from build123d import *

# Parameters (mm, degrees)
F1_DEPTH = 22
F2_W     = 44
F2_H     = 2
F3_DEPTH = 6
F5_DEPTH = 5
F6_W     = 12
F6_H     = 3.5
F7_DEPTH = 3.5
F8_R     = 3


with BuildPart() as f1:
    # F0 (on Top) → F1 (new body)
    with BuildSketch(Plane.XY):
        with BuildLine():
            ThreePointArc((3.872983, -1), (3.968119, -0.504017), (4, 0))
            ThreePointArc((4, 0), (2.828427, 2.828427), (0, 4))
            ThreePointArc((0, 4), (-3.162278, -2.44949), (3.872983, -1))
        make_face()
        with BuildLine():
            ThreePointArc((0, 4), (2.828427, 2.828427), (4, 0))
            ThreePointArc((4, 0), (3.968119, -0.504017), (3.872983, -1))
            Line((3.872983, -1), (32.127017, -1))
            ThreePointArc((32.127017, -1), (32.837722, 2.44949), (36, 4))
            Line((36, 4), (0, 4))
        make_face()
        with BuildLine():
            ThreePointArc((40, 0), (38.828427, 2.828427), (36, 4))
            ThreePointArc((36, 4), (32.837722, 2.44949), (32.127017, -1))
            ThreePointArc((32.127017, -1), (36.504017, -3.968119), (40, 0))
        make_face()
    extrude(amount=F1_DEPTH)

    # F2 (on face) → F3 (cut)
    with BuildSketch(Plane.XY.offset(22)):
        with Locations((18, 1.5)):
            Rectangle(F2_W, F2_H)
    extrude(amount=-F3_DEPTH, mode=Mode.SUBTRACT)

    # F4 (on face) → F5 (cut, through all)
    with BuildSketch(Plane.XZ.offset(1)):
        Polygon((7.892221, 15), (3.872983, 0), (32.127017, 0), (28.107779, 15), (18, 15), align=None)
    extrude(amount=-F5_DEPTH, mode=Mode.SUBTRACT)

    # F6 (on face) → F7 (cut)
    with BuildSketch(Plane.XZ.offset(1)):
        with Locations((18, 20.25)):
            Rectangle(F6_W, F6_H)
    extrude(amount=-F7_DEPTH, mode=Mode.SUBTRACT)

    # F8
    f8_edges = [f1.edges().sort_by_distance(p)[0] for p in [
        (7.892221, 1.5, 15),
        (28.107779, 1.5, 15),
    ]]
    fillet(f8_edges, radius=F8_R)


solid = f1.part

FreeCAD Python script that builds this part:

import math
import FreeCAD as App
import Part
import Sketcher
Q = App.Units.Quantity


def edges_at(feature, points):
    """Names of the edges that pass closest to the given points."""
    edges = feature.Shape.Edges
    near = lambda p: min(range(len(edges)), key=lambda i: edges[i].distToShape(Part.Vertex(*p))[0])
    return sorted({f"Edge{near(p) + 1}" for p in points})


def add_polygon(sketch, points):
    """Adds a closed chain of lines whose ends are joined by coincident constraints."""
    first, n = sketch.GeometryCount, len(points)
    for a, b in zip(points, points[1:] + points[:1]):
        sketch.addGeometry(Part.LineSegment(App.Vector(*a, 0), App.Vector(*b, 0)), False)
    for i in range(n):
        sketch.addConstraint(Sketcher.Constraint("Coincident", first + i, 2, first + (i + 1) % n, 1))

doc = App.newDocument("Part")
body = doc.addObject("PartDesign::Body", "Body")

sketch1 = body.newObject("Sketcher::SketchObject", "Sketch")
sketch1.AttachmentSupport = (doc.getObject("XY_Plane"), [""])
sketch1.MapMode = "FlatFace"
sketch1.addGeometry([
    Part.ArcOfCircle(Part.Circle(App.Vector(0, 0, 0), App.Vector(0, 0, 1), 4), math.radians(90), math.radians(346)),
    Part.LineSegment(App.Vector(3.9, -1, 0), App.Vector(32.1, -1, 0)),
    Part.ArcOfCircle(Part.Circle(App.Vector(36, 0, 0), App.Vector(0, 0, 1), 4), math.radians(-166), math.radians(0)),
    Part.ArcOfCircle(Part.Circle(App.Vector(36, 0, 0), App.Vector(0, 0, 1), 4), math.radians(0), math.radians(90)),
    Part.LineSegment(App.Vector(36, 4, 0), App.Vector(0, 4, 0)),
], False)
sketch1.addConstraint([
    Sketcher.Constraint("Coincident", 0, 2, 1, 1),
    Sketcher.Constraint("Coincident", 1, 2, 2, 1),
    Sketcher.Constraint("Tangent", 2, 2, 3, 1),
    Sketcher.Constraint("Tangent", 3, 2, 4, 1),
    Sketcher.Constraint("Tangent", 4, 2, 0, 1),
    Sketcher.Constraint("Horizontal", 1),
    Sketcher.Constraint("Horizontal", 4),
    Sketcher.Constraint("Coincident", 0, 3, -1, 1),
    Sketcher.Constraint("Equal", 0, 2),
    Sketcher.Constraint("Equal", 2, 3),
    Sketcher.Constraint("PointOnObject", 2, 2, -1),
    Sketcher.Constraint("Radius", 0, Q("4 mm")),
    Sketcher.Constraint("DistanceX", 4, 2, 4, 1, Q("36 mm")),
    Sketcher.Constraint("DistanceY", 0, 2, -1, 1, Q("1 mm")),
])
pad1 = body.newObject("PartDesign::Pad", "Pad")
pad1.Profile = sketch1
pad1.Length = 22

sketch2 = body.newObject("Sketcher::SketchObject", "Sketch001")
sketch2.AttachmentSupport = (doc.getObject("XY_Plane"), [""])
sketch2.MapMode = "FlatFace"
sketch2.AttachmentOffset = App.Placement(App.Vector(0, 0, 22), App.Rotation())
add_polygon(sketch2, [(-4, 2.5), (-4, 0.5), (40, 0.5), (40, 2.5)])
sketch2.addConstraint([
    Sketcher.Constraint("Vertical", 0),
    Sketcher.Constraint("Horizontal", 1),
    Sketcher.Constraint("Vertical", 2),
    Sketcher.Constraint("Horizontal", 3),
    Sketcher.Constraint("DistanceX", 1, 1, 1, 2, Q("44 mm")),
    Sketcher.Constraint("DistanceY", 0, 2, 0, 1, Q("2 mm")),
    Sketcher.Constraint("DistanceX", 0, 2, -1, 1, Q("4 mm")),
    Sketcher.Constraint("DistanceY", -1, 1, 0, 2, Q("0.5 mm")),
])
pocket1 = body.newObject("PartDesign::Pocket", "Pocket")
pocket1.Profile = sketch2
pocket1.Length = 6

sketch3 = body.newObject("Sketcher::SketchObject", "Sketch002")
sketch3.AttachmentSupport = (doc.getObject("XZ_Plane"), [""])
sketch3.MapMode = "FlatFace"
sketch3.AttachmentOffset = App.Placement(App.Vector(0, 0, 1), App.Rotation())
add_polygon(sketch3, [(8, 15), (4, 0), (32, 0), (28, 15)])
sketch3.addConstraint([
    Sketcher.Constraint("Horizontal", 1),
    Sketcher.Constraint("Horizontal", 3),
    Sketcher.Constraint("PointOnObject", 0, 2, -1),
    Sketcher.Constraint("Equal", 0, 2),
    Sketcher.Constraint("Angle", 0, Q("-105 deg")),
    Sketcher.Constraint("DistanceY", -1, 1, 2, 2, Q("15 mm")),
    Sketcher.Constraint("DistanceX", 3, 2, 3, 1, Q("20.215558 mm")),
    Sketcher.Constraint("DistanceX", -1, 1, 2, 2, Q("28.107779 mm")),
])
pocket2 = body.newObject("PartDesign::Pocket", "Pocket001")
pocket2.Profile = sketch3
pocket2.Type = "ThroughAll"

sketch4 = body.newObject("Sketcher::SketchObject", "Sketch003")
sketch4.AttachmentSupport = (doc.getObject("XZ_Plane"), [""])
sketch4.MapMode = "FlatFace"
sketch4.AttachmentOffset = App.Placement(App.Vector(0, 0, 1), App.Rotation())
add_polygon(sketch4, [(12, 22), (12, 18.5), (24, 18.5), (24, 22)])
sketch4.addConstraint([
    Sketcher.Constraint("Vertical", 0),
    Sketcher.Constraint("Horizontal", 1),
    Sketcher.Constraint("Vertical", 2),
    Sketcher.Constraint("Horizontal", 3),
    Sketcher.Constraint("DistanceX", 1, 1, 1, 2, Q("12 mm")),
    Sketcher.Constraint("DistanceY", 0, 2, 0, 1, Q("3.5 mm")),
    Sketcher.Constraint("DistanceX", -1, 1, 0, 2, Q("12 mm")),
    Sketcher.Constraint("DistanceY", -1, 1, 2, 2, Q("22 mm")),
])
pocket3 = body.newObject("PartDesign::Pocket", "Pocket002")
pocket3.Profile = sketch4
pocket3.Length = 3.5
doc.recompute()

fillet = body.newObject("PartDesign::Fillet", "Fillet")
fillet.Base = (pocket3, edges_at(pocket3, [(7.892, 1.5, 15), (28.108, 1.5, 15)]))
fillet.Radius = 3

doc.recompute()
